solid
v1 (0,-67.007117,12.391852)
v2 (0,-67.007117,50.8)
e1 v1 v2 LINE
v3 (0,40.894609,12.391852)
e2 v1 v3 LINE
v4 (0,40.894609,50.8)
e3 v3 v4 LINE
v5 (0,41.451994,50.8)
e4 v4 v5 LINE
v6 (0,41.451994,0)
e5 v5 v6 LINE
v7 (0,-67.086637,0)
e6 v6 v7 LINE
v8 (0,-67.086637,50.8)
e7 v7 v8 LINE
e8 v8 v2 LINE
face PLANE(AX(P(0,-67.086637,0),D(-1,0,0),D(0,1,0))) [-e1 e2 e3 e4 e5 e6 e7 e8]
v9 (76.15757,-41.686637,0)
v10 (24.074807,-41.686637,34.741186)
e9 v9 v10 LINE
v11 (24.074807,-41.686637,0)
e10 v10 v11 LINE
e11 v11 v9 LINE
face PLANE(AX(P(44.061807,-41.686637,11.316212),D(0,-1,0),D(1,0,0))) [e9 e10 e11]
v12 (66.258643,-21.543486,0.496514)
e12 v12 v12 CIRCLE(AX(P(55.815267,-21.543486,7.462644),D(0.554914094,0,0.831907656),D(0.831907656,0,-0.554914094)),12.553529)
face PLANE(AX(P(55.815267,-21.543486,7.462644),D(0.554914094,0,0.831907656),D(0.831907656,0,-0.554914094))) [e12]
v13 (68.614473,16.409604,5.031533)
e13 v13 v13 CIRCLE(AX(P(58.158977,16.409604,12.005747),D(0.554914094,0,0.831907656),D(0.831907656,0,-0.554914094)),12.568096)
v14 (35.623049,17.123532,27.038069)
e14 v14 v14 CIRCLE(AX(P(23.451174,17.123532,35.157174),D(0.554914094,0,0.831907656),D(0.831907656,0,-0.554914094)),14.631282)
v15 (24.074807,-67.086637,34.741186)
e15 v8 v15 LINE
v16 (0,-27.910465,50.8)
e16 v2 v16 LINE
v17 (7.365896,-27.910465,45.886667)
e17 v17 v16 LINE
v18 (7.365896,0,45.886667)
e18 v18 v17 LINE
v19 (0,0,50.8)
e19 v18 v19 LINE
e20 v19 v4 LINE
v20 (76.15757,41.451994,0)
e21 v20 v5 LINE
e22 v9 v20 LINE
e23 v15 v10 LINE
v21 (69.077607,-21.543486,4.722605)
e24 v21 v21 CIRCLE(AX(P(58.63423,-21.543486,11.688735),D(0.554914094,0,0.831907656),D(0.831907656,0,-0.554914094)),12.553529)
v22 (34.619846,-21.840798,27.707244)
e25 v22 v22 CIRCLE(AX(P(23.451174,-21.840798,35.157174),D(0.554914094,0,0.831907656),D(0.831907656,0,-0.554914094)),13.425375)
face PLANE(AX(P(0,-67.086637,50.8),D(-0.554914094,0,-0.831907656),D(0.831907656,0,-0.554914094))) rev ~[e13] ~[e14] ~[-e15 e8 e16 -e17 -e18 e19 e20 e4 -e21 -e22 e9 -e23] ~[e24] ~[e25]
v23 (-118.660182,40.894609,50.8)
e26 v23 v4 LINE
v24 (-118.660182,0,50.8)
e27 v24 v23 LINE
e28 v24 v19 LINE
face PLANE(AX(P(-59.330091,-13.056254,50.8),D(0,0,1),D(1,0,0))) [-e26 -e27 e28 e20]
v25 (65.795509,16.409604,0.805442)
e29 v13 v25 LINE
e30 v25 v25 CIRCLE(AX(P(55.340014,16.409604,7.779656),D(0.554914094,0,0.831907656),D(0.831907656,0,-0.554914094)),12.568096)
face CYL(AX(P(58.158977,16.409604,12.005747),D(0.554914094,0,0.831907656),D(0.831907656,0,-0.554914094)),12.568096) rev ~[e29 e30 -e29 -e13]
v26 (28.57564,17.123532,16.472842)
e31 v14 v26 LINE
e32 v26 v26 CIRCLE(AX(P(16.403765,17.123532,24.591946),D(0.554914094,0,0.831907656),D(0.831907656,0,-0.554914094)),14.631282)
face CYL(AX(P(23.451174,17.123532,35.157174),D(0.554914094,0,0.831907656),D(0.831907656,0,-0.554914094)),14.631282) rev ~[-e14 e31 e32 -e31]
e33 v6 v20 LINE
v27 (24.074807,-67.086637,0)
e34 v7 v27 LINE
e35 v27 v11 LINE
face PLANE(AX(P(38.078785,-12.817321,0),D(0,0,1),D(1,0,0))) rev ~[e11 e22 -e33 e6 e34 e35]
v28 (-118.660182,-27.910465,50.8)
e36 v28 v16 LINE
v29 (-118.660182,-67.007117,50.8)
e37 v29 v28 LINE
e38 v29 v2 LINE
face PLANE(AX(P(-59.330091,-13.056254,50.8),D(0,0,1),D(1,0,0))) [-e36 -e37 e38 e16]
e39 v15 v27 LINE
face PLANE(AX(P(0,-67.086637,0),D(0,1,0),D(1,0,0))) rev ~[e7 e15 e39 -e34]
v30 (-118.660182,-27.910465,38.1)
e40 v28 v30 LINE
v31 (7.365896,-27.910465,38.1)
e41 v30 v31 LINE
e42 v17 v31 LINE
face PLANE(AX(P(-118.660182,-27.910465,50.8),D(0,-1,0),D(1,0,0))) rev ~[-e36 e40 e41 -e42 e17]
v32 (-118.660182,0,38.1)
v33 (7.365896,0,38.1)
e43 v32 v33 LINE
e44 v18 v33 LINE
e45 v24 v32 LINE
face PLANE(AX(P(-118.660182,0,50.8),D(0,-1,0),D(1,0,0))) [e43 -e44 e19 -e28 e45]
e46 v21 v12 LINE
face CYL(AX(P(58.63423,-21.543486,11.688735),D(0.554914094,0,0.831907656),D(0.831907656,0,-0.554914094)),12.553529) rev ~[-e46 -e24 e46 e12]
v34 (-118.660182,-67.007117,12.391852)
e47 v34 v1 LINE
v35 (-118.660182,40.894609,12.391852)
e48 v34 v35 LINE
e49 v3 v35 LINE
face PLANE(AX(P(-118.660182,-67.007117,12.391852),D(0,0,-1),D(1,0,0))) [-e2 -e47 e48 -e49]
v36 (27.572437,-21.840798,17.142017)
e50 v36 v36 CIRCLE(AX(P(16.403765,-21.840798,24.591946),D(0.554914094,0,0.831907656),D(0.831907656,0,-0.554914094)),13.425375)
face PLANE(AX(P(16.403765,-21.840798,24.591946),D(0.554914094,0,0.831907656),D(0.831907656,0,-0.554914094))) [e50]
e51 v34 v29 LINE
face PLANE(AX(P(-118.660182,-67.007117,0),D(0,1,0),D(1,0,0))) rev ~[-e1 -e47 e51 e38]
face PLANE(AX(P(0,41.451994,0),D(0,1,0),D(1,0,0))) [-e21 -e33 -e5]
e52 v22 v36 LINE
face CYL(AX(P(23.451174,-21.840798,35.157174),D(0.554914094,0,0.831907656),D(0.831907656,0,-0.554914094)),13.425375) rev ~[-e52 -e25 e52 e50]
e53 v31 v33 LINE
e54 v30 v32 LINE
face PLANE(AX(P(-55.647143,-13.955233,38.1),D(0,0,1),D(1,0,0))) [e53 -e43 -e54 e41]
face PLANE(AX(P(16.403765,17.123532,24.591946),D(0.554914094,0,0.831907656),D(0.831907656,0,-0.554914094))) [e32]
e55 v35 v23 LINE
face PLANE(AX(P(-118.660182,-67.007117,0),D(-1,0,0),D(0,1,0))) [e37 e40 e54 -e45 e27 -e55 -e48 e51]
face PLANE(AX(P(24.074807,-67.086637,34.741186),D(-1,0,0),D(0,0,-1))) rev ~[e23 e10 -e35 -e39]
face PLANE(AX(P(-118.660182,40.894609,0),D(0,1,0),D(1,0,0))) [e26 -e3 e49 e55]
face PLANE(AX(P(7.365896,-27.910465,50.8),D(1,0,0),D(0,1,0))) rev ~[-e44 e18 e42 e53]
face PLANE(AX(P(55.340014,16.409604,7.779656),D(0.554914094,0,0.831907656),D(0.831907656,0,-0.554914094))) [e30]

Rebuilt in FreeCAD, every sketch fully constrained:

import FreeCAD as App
import Part
import Sketcher
from FreeCAD import Vector
Q = App.Units.Quantity


def add_polygon(sketch, points):
    """Adds a closed chain of lines whose ends are joined by coincident constraints."""
    first, n = sketch.GeometryCount, len(points)
    for a, b in zip(points, points[1:] + points[:1]):
        sketch.addGeometry(Part.LineSegment(App.Vector(*a, 0), App.Vector(*b, 0)), False)
    for i in range(n):
        sketch.addConstraint(Sketcher.Constraint("Coincident", first + i, 2, first + (i + 1) % n, 1))

doc = App.newDocument("Part")
body = doc.addObject("PartDesign::Body", "Body")

# Sketch on XY plane
sketch1 = body.newObject("Sketcher::SketchObject", "Sketch")
sketch1.AttachmentSupport = (doc.getObject("XY_Plane"), [""])
sketch1.MapMode = "FlatFace"
add_polygon(sketch1, [(0, 41), (0, -67), (76, -67), (76, 41)])  # lines 0-3
sketch1.addConstraint([
    Sketcher.Constraint("Vertical", 0),
    Sketcher.Constraint("Horizontal", 1),
    Sketcher.Constraint("Vertical", 2),
    Sketcher.Constraint("Horizontal", 3),
    Sketcher.Constraint("PointOnObject", 0, 2, -2),
    Sketcher.Constraint("DistanceX", 1, 1, 1, 2, 76.15757),
    Sketcher.Constraint("DistanceY", 0, 2, 0, 1, 108.538631),
    Sketcher.Constraint("DistanceY", 0, 2, -1, 1, 67.086637),
])
pad1 = body.newObject("PartDesign::Pad", "Pad")
pad1.Profile = sketch1
pad1.Length = Q("2 in")

# Sketch on XZ plane
sketch2 = body.newObject("Sketcher::SketchObject", "Sketch001")
sketch2.AttachmentSupport = (doc.getObject("XZ_Plane"), [""])
sketch2.MapMode = "FlatFace"
sketch2.AttachmentOffset = App.Placement(Vector(0, 0, 67.086637), App.Rotation())
add_polygon(sketch2, [(76, 51), (0, 51), (76, 0)])  # lines 0-2
sketch2.addConstraint([
    Sketcher.Constraint("Horizontal", 0),
    Sketcher.Constraint("Vertical", 2),
    Sketcher.Constraint("PointOnObject", 0, 2, -2),
    Sketcher.Constraint("PointOnObject", 1, 2, -1),
    Sketcher.Constraint("DistanceY", 2, 1, 2, 2, Q("2 in")),
    Sketcher.Constraint("Distance", 1, 91.545701),
])
pocket1 = body.newObject("PartDesign::Pocket", "Pocket")
pocket1.Profile = sketch2
pocket1.Length = Q("4.68 in")

# Sketch on XZ plane
sketch3 = body.newObject("Sketcher::SketchObject", "Sketch002")
sketch3.AttachmentSupport = (doc.getObject("XZ_Plane"), [""])
sketch3.MapMode = "FlatFace"
sketch3.AttachmentOffset = App.Placement(Vector(0, 0, 67.086637), App.Rotation())
add_polygon(sketch3, [(76, 0), (24, 35), (24, 0)])  # lines 0-2
sketch3.addConstraint([
    Sketcher.Constraint("Vertical", 1),
    Sketcher.Constraint("Horizontal", 2),
    Sketcher.Constraint("PointOnObject", 1, 2, -1),
    Sketcher.Constraint("DistanceX", 2, 1, 2, 2, 52.082763),
    Sketcher.Constraint("DistanceY", 1, 2, 1, 1, 34.741186),
    Sketcher.Constraint("DistanceX", -1, 1, 2, 2, 76.15757),
])
pocket2 = body.newObject("PartDesign::Pocket", "Pocket001")
pocket2.Profile = sketch3
pocket2.Length = Q("1 in")

# Sketch on an angled plane
sketch4 = body.newObject("Sketcher::SketchObject", "Sketch003")
sketch4.Placement = App.Placement(Vector(23.451174, 0, 35.157174), App.Rotation(Vector(0.831907656, 0, -0.554914094), Vector(0, 1, 0), Vector(0.554914094, 0, 0.831907656), "ZXY"))
sketch4.addGeometry(Part.Circle(Vector(42, -22, 0), Vector(0, 0, 1), 13), False)
sketch4.addConstraint([
    Sketcher.Constraint("Diameter", 0, 25.107058),
    Sketcher.Constraint("DistanceX", -1, 1, 0, 3, 42.292021),
    Sketcher.Constraint("DistanceY", 0, 3, -1, 1, 21.543486),
])
pocket3 = body.newObject("PartDesign::Pocket", "Pocket002")
pocket3.Profile = sketch4
pocket3.Length = Q("0.2 in")

# Sketch on an angled plane
sketch5 = body.newObject("Sketcher::SketchObject", "Sketch004")
sketch5.Placement = App.Placement(Vector(23.451174, 0, 35.157174), App.Rotation(Vector(0.831907656, 0, -0.554914094), Vector(0, 1, 0), Vector(0.554914094, 0, 0.831907656), "ZXY"))
sketch5.addGeometry(Part.Circle(Vector(42, 16, 0), Vector(0, 0, 1), 13), False)
sketch5.addConstraint([
    Sketcher.Constraint("Diameter", 0, 25.136191),
    Sketcher.Constraint("DistanceX", -1, 1, 0, 3, 41.72074),
    Sketcher.Constraint("DistanceY", -1, 1, 0, 3, 16.409604),
])
pocket4 = body.newObject("PartDesign::Pocket", "Pocket003")
pocket4.Profile = sketch5
pocket4.Length = Q("0.2 in")

# Sketch on an angled plane
sketch6 = body.newObject("Sketcher::SketchObject", "Sketch005")
sketch6.Placement = App.Placement(Vector(23.451174, 0, 35.157174), App.Rotation(Vector(0.831907656, 0, -0.554914094), Vector(0, 1, 0), Vector(0.554914094, 0, 0.831907656), "ZXY"))
sketch6.addGeometry(Part.Circle(Vector(0, -22, 0), Vector(0, 0, 1), 13), False)
sketch6.addConstraint([
    Sketcher.Constraint("PointOnObject", 0, 3, -2),
    Sketcher.Constraint("Diameter", 0, 26.850749),
    Sketcher.Constraint("DistanceY", 0, 3, -1, 1, 21.840798),
])
pocket5 = body.newObject("PartDesign::Pocket", "Pocket004")
pocket5.Profile = sketch6
pocket5.Length = Q("0.5 in")

# Sketch on an angled plane
sketch7 = body.newObject("Sketcher::SketchObject", "Sketch006")
sketch7.Placement = App.Placement(Vector(23.451174, 0, 35.157174), App.Rotation(Vector(0.831907656, 0, -0.554914094), Vector(0, 1, 0), Vector(0.554914094, 0, 0.831907656), "ZXY"))
sketch7.addGeometry(Part.Circle(Vector(0, 17, 0), Vector(0, 0, 1), 15), False)
sketch7.addConstraint([
    Sketcher.Constraint("PointOnObject", 0, 3, -2),
    Sketcher.Constraint("Diameter", 0, 29.262563),
    Sketcher.Constraint("DistanceY", -1, 1, 0, 3, 17.123532),
])
pocket6 = body.newObject("PartDesign::Pocket", "Pocket005")
pocket6.Profile = sketch7
pocket6.Length = Q("0.5 in")

# Sketch on XY plane
sketch8 = body.newObject("Sketcher::SketchObject", "Sketch007")
sketch8.AttachmentSupport = (doc.getObject("XY_Plane"), [""])
sketch8.MapMode = "FlatFace"
add_polygon(sketch8, [(-119, 41), (-119, -67), (0, -67), (0, 41)])  # lines 0-3
sketch8.addConstraint([
    Sketcher.Constraint("Vertical", 0),
    Sketcher.Constraint("Horizontal", 1),
    Sketcher.Constraint("Vertical", 2),
    Sketcher.Constraint("Horizontal", 3),
    Sketcher.Constraint("PointOnObject", 1, 2, -2),
    Sketcher.Constraint("DistanceX", 1, 1, 1, 2, 118.660182),
    Sketcher.Constraint("DistanceY", 0, 2, 0, 1, 107.901726),
    Sketcher.Constraint("DistanceY", -1, 1, 2, 2, 40.894609),
])
pad2 = body.newObject("PartDesign::Pad", "Pad001")
pad2.Profile = sketch8
pad2.Length = Q("2 in")

# Sketch on XY plane
sketch9 = body.newObject("Sketcher::SketchObject", "Sketch008")
sketch9.AttachmentSupport = (doc.getObject("XY_Plane"), [""])
sketch9.MapMode = "FlatFace"
sketch9.AttachmentOffset = App.Placement(Vector(0, 0, 2 * 25.4), App.Rotation())
add_polygon(sketch9, [(-119, 0), (-119, -28), (7, -28), (7, 0)])  # lines 0-3
sketch9.addConstraint([
    Sketcher.Constraint("Vertical", 0),
    Sketcher.Constraint("Horizontal", 1),
    Sketcher.Constraint("Vertical", 2),
    Sketcher.Constraint("Horizontal", 3),
    Sketcher.Constraint("PointOnObject", 2, 2, -1),
    Sketcher.Constraint("DistanceX", 1, 1, 1, 2, 126.026078),
    Sketcher.Constraint("DistanceY", 0, 2, 0, 1, 27.910465),
    Sketcher.Constraint("DistanceX", 0, 2, -1, 1, 118.660182),
])
pocket7 = body.newObject("PartDesign::Pocket", "Pocket006")
pocket7.Profile = sketch9
pocket7.Length = Q("0.5 in")

# Sketch on XZ plane
sketch10 = body.newObject("Sketcher::SketchObject", "Sketch009")
sketch10.AttachmentSupport = (doc.getObject("XZ_Plane"), [""])
sketch10.MapMode = "FlatFace"
sketch10.AttachmentOffset = App.Placement(Vector(0, 0, 67.007117), App.Rotation())
add_polygon(sketch10, [(-119, 12), (-119, 0), (0, 0), (0, 12)])  # lines 0-3
sketch10.addConstraint([
    Sketcher.Constraint("Vertical", 0),
    Sketcher.Constraint("Horizontal", 1),
    Sketcher.Constraint("Vertical", 2),
    Sketcher.Constraint("Horizontal", 3),
    Sketcher.Constraint("Coincident", 1, 2, -1, 1),
    Sketcher.Constraint("DistanceX", 1, 1, 1, 2, 118.660182),
    Sketcher.Constraint("DistanceY", 0, 2, 0, 1, 12.391852),
])
pocket8 = body.newObject("PartDesign::Pocket", "Pocket007")
pocket8.Profile = sketch10
pocket8.Length = Q("5.66 in")

doc.recompute()
